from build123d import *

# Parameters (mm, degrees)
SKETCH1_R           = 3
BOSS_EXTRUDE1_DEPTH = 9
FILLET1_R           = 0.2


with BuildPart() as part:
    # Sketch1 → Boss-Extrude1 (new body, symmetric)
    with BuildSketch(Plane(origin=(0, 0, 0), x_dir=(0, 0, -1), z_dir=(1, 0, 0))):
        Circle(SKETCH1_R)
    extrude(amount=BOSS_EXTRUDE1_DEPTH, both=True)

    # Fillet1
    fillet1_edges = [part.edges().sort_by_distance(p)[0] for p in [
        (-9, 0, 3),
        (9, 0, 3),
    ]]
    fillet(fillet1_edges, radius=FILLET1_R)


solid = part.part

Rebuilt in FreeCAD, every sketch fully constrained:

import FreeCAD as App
import Part
import Sketcher

V = App.Vector


def edges_at(feature, points):
    """Names of the edges that pass closest to the given points."""
    edges = feature.Shape.Edges
    near = lambda p: min(range(len(edges)), key=lambda i: edges[i].distToShape(Part.Vertex(*p))[0])
    return sorted({f"Edge{near(p) + 1}" for p in points})

doc = App.newDocument("Part")
body = doc.addObject("PartDesign::Body", "Body")

# Sketch on YZ plane
sketch1 = doc.addObject("Sketcher::SketchObject", "Sketch")
body.addObject(sketch1)
sketch1.AttachmentSupport = (doc.YZ_Plane, [""])
sketch1.MapMode = "FlatFace"
sketch1.addGeometry(Part.Circle(V(0, 0, 0), V(0, 0, 1), 3), False)
sketch1.addConstraint(Sketcher.Constraint("Coincident", 0, 3, -1, 1))
sketch1.addConstraint(Sketcher.Constraint("Diameter", 0, 6.0))
pad1 = doc.addObject("PartDesign::Pad", "Pad")
body.addObject(pad1)
pad1.Profile = sketch1
pad1.Length = 18
pad1.Midplane = True
doc.recompute()

fillet = doc.addObject("PartDesign::Fillet", "Fillet")
body.addObject(fillet)
fillet.Base = (pad1, edges_at(pad1, [(-9, 0, 3), (9, 0, 3)]))
fillet.Radius = 0.2

doc.recompute()
